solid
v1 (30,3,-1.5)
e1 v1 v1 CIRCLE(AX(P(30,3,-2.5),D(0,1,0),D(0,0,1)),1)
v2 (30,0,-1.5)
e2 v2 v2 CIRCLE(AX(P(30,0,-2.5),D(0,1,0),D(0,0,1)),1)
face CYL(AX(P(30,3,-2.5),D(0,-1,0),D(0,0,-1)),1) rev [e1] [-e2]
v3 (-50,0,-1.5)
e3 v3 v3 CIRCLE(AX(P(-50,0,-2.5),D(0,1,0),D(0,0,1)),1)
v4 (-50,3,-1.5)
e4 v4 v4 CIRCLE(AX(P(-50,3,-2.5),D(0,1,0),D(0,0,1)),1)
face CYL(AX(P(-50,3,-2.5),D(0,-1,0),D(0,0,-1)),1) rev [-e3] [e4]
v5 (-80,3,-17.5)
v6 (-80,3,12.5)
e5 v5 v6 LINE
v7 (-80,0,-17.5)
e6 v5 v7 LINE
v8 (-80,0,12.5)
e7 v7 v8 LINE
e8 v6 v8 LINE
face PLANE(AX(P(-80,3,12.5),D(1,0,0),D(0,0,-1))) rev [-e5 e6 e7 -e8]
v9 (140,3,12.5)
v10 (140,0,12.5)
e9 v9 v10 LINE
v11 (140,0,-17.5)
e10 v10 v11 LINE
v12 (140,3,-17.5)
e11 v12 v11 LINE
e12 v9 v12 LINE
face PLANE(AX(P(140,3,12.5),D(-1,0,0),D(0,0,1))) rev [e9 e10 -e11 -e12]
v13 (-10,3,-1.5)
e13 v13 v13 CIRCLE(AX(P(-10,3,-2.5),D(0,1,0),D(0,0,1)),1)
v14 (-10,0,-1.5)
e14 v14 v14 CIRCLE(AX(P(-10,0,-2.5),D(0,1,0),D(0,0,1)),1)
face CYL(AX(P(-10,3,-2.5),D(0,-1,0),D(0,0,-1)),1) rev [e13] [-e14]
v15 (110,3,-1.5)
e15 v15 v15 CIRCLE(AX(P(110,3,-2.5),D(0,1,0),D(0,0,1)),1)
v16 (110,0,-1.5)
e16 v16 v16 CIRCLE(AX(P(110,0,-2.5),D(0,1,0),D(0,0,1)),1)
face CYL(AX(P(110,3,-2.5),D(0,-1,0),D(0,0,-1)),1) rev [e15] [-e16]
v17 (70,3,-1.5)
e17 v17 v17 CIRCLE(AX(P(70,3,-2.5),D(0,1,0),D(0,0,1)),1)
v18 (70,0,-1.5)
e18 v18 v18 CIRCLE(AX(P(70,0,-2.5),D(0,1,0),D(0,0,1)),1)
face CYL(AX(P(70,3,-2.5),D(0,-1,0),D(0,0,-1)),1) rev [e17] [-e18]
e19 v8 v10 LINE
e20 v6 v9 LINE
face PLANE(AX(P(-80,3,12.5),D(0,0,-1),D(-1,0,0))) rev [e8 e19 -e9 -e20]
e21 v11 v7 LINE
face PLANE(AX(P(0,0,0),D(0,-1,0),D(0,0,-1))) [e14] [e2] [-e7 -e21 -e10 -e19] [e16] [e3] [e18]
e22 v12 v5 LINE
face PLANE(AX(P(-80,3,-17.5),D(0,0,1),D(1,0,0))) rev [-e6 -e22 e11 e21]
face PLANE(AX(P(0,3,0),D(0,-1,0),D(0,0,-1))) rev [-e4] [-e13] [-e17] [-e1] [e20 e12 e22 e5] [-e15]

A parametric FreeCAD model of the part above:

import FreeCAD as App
import Part
import Sketcher
from FreeCAD import Vector
Q = App.Units.Quantity


def add_polygon(sketch, points):
    """Adds a closed chain of lines whose ends are joined by coincident constraints."""
    first, n = sketch.GeometryCount, len(points)
    for a, b in zip(points, points[1:] + points[:1]):
        sketch.addGeometry(Part.LineSegment(App.Vector(*a, 0), App.Vector(*b, 0)), False)
    for i in range(n):
        sketch.addConstraint(Sketcher.Constraint("Coincident", first + i, 2, first + (i + 1) % n, 1))

doc = App.newDocument("Part")
body = doc.addObject("PartDesign::Body", "Body")

# Sketch on XZ plane
sketch1 = doc.addObject("Sketcher::SketchObject", "Sketch")
body.addObject(sketch1)
sketch1.AttachmentSupport = (doc.XZ_Plane, [""])
sketch1.MapMode = "FlatFace"
add_polygon(sketch1, [(-80, -17.5), (-80, 12.5), (140, 12.5), (140, -17.5)])  # lines 0-3
sketch1.addGeometry(Part.Circle(Vector(-50, -2.5, 0), Vector(0, 0, 1), 1), False)  # 4
sketch1.addGeometry(Part.Circle(Vector(-10, -2.5, 0), Vector(0, 0, 1), 1), False)  # 5
sketch1.addGeometry(Part.Circle(Vector(30, -2.5, 0), Vector(0, 0, 1), 1), False)  # 6
sketch1.addGeometry(Part.Circle(Vector(70, -2.5, 0), Vector(0, 0, 1), 1), False)  # 7
sketch1.addGeometry(Part.Circle(Vector(110, -2.5, 0), Vector(0, 0, 1), 1), False)  # 8
sketch1.addConstraint([
    Sketcher.Constraint("Vertical", 0),
    Sketcher.Constraint("Horizontal", 1),
    Sketcher.Constraint("Vertical", 2),
    Sketcher.Constraint("Horizontal", 3),
    Sketcher.Constraint("Equal", 4, 5),
    Sketcher.Constraint("Equal", 5, 6),
    Sketcher.Constraint("Equal", 6, 7),
    Sketcher.Constraint("Equal", 7, 8),
    Sketcher.Constraint("Horizontal", 4, 3, 5, 3),
    Sketcher.Constraint("Horizontal", 5, 3, 6, 3),
    Sketcher.Constraint("Horizontal", 6, 3, 7, 3),
    Sketcher.Constraint("Horizontal", 7, 3, 8, 3),
    Sketcher.Constraint("Diameter", 4, Q("2 mm")),
    Sketcher.Constraint("DistanceX", 1, 1, 1, 2, Q("220 mm")),
    Sketcher.Constraint("DistanceY", 0, 1, 0, 2, Q("30 mm")),
    Sketcher.Constraint("DistanceX", 4, 3, -1, 1, Q("50 mm")),
    Sketcher.Constraint("DistanceX", 5, 3, -1, 1, Q("10 mm")),
    Sketcher.Constraint("DistanceX", -1, 1, 6, 3, Q("30 mm")),
    Sketcher.Constraint("DistanceX", -1, 1, 7, 3, Q("70 mm")),
    Sketcher.Constraint("DistanceX", -1, 1, 8, 3, Q("110 mm")),
    Sketcher.Constraint("DistanceX", 0, 2, -1, 1, Q("80 mm")),
    Sketcher.Constraint("DistanceY", 4, 3, 0, 2, Q("15 mm")),
    Sketcher.Constraint("DistanceY", 4, 3, -1, 1, Q("2.5 mm")),
])
pad1 = doc.addObject("PartDesign::Pad", "Pad")
body.addObject(pad1)
pad1.Profile = sketch1
pad1.Length = 3
pad1.Reversed = True

doc.recompute()
